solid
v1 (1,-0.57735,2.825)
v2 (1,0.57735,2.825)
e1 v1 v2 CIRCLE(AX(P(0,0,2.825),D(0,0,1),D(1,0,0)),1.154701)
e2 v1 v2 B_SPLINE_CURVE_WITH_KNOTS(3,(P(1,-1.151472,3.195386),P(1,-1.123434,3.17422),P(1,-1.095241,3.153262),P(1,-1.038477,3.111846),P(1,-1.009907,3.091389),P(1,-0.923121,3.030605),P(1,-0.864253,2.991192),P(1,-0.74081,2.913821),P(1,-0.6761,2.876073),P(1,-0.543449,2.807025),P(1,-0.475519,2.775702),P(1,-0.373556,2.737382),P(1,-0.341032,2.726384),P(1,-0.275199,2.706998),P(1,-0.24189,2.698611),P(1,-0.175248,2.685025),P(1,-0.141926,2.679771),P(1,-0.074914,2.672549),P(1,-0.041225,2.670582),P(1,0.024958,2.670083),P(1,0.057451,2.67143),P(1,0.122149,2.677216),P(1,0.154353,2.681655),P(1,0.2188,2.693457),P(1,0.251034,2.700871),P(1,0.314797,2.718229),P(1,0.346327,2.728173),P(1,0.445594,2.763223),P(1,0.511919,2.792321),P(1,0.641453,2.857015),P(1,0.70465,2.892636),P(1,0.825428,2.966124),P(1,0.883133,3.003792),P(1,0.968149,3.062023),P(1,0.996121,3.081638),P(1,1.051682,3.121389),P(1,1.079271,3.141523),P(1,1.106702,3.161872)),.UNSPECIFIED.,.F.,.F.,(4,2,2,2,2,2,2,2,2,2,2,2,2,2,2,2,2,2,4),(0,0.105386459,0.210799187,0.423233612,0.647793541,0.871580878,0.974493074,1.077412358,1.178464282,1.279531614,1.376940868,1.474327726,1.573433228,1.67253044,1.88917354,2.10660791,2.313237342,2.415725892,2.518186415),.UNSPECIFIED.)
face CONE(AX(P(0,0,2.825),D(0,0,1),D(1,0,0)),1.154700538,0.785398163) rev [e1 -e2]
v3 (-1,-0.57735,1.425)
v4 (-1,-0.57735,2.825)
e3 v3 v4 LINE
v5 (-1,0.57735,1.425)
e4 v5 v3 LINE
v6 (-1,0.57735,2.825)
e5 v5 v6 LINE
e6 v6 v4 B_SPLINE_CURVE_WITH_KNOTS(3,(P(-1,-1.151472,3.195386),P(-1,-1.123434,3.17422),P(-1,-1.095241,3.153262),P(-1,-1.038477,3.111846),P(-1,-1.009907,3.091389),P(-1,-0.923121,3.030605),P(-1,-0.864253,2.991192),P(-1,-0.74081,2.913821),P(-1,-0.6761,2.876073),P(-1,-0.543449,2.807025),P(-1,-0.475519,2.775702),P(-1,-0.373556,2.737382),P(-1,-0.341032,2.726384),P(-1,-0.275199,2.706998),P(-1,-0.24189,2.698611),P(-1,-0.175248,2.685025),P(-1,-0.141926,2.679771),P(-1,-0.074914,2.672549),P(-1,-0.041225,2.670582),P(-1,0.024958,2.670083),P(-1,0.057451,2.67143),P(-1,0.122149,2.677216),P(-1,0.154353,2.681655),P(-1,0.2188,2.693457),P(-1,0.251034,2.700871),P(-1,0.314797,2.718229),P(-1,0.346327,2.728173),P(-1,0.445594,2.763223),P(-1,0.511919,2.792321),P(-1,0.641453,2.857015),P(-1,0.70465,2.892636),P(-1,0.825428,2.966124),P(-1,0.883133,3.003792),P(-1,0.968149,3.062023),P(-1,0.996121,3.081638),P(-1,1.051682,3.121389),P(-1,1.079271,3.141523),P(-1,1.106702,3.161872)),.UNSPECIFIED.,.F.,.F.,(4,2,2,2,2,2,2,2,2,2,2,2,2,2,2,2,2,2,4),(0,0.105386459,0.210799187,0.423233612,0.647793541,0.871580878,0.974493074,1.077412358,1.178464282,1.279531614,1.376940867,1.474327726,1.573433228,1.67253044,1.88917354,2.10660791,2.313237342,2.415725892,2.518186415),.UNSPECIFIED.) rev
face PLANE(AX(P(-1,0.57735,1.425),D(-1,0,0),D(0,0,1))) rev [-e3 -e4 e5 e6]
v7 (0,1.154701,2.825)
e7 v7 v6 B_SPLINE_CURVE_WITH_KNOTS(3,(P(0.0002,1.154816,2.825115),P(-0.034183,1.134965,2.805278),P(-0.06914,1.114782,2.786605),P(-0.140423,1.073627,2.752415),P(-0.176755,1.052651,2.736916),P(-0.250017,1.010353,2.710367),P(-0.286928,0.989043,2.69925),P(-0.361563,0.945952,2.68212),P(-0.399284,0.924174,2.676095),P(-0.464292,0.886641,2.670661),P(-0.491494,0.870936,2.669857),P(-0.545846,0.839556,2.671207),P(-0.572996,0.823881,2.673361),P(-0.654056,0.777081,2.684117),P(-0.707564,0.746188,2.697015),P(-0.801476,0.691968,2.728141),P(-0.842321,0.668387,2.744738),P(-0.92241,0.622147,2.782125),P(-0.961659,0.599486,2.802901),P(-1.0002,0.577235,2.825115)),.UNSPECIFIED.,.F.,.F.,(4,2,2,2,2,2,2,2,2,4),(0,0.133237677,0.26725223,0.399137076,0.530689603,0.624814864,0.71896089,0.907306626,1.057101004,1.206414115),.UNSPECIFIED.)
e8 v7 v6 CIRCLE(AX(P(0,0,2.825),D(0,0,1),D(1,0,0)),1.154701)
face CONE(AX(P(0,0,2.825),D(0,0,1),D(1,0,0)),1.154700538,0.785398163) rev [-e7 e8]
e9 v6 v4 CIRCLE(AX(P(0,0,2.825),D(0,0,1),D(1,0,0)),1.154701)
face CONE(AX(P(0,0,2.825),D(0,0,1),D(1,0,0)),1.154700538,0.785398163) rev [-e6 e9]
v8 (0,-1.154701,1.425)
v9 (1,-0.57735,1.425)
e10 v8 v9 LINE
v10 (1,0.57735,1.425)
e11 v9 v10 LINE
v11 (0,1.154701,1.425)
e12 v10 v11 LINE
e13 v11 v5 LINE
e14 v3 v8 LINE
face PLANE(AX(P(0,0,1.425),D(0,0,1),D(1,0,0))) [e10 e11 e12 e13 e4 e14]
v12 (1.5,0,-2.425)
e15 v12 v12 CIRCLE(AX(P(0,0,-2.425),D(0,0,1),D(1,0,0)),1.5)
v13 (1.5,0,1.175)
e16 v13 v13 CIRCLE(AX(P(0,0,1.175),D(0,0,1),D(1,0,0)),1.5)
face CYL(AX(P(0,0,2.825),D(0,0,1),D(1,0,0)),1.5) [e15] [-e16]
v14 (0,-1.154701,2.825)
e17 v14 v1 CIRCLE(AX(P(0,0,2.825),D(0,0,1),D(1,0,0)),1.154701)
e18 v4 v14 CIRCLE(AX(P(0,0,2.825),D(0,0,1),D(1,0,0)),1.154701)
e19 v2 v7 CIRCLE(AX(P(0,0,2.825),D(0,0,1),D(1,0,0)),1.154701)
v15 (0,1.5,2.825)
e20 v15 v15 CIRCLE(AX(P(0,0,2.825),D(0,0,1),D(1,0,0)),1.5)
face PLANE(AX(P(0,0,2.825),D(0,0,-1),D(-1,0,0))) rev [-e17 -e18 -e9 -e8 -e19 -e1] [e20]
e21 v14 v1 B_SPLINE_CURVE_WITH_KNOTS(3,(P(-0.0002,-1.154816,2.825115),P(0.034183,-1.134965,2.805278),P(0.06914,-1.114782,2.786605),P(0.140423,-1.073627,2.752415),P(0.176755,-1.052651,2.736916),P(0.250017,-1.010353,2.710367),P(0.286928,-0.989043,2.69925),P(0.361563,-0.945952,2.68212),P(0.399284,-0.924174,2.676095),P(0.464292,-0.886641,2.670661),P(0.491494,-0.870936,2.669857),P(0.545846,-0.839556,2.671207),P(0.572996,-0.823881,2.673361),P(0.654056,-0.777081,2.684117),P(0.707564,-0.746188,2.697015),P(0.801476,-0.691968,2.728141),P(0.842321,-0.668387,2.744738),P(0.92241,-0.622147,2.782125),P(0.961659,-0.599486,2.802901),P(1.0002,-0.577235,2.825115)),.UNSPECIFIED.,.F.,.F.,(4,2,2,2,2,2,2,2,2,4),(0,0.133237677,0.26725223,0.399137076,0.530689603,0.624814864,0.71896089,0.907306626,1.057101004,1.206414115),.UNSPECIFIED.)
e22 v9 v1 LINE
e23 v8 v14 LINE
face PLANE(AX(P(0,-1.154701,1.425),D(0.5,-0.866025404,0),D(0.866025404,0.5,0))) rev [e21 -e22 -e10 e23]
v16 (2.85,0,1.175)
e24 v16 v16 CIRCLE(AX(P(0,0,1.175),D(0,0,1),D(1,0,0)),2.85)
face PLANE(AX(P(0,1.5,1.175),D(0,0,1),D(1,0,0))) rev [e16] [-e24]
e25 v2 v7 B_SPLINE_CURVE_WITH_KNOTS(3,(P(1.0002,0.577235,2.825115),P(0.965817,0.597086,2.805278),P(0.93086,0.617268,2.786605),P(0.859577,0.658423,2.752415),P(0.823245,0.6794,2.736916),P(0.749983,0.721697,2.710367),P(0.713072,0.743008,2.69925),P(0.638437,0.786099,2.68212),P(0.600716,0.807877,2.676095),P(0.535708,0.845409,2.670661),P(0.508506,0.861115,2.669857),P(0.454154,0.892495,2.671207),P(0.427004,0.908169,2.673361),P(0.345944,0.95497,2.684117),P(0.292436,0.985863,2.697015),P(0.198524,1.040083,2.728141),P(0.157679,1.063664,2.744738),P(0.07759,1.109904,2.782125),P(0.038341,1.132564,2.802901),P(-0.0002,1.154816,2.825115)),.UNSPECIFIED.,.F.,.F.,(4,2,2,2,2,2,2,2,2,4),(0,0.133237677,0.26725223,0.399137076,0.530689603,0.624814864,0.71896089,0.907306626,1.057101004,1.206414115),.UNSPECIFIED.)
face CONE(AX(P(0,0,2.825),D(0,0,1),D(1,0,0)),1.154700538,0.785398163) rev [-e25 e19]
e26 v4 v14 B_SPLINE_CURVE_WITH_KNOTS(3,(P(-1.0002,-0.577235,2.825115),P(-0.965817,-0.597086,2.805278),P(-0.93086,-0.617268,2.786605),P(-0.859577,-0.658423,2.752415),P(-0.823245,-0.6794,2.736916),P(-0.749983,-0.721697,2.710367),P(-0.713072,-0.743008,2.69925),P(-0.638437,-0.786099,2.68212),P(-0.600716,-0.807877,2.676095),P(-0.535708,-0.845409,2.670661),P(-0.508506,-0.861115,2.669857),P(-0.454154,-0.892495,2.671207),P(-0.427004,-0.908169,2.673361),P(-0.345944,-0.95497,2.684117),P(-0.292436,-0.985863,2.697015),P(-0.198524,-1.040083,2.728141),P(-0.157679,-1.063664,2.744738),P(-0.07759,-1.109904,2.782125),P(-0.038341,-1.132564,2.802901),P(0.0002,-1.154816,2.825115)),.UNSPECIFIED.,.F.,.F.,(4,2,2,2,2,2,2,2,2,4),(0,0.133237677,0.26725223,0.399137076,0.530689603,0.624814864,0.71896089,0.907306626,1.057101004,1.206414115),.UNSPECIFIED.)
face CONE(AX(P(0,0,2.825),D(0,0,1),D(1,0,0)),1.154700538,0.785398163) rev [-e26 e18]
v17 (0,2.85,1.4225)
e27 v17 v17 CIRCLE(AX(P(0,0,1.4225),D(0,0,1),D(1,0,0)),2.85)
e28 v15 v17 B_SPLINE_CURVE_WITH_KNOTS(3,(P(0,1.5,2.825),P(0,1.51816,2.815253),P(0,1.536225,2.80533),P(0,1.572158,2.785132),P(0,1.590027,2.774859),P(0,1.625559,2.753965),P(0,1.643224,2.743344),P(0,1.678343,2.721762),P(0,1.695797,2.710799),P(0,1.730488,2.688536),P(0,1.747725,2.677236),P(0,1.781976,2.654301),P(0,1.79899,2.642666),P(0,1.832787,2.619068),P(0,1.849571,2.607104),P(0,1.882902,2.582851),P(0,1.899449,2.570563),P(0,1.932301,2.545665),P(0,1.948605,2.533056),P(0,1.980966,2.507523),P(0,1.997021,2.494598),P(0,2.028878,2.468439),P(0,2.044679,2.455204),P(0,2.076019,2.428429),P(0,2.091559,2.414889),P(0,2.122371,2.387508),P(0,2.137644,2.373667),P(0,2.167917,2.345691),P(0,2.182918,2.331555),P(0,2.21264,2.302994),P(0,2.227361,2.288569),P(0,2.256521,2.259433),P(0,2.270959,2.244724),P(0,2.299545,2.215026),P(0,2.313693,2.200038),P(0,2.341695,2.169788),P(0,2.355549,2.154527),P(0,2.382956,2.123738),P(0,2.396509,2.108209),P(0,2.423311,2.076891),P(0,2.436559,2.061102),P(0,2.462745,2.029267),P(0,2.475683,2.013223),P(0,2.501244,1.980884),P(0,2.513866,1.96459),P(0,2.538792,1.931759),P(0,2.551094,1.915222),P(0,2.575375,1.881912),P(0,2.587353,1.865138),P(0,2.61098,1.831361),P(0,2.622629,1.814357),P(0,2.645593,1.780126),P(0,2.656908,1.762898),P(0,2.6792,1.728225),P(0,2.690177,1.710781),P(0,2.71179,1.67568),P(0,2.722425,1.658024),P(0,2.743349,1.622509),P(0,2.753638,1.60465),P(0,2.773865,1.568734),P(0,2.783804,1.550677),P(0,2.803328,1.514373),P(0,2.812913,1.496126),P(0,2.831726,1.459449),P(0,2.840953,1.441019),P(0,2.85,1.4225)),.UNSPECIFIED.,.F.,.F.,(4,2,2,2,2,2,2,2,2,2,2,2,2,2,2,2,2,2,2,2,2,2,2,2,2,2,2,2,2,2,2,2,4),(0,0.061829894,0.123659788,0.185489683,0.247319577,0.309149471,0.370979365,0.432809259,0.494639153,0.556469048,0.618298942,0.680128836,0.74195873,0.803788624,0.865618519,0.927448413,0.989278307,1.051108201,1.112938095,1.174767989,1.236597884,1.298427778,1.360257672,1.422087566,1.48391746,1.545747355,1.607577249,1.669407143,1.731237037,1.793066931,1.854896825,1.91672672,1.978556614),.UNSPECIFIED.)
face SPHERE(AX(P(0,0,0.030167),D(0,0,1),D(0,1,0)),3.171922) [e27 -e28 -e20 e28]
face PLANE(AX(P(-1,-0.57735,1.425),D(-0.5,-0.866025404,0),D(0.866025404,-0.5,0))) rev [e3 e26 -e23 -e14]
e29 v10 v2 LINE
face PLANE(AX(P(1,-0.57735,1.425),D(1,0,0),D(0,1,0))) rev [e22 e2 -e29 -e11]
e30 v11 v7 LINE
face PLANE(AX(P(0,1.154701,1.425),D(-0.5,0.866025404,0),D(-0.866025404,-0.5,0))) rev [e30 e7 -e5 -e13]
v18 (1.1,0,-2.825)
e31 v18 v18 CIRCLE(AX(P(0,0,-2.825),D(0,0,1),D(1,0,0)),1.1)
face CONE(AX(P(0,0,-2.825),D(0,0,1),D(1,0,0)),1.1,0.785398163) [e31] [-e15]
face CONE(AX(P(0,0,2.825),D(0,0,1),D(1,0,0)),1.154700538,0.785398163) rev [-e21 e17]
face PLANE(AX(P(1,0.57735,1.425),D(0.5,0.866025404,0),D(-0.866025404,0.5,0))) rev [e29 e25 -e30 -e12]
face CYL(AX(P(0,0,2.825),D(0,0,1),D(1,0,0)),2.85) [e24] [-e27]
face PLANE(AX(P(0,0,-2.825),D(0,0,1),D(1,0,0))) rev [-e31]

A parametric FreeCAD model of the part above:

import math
import FreeCAD as App
import Part
import Sketcher

V = App.Vector
Q = App.Units.Quantity


def add_polygon(sketch, points):
    """Adds a closed chain of lines whose ends are joined by coincident constraints."""
    first, n = sketch.GeometryCount, len(points)
    for a, b in zip(points, points[1:] + points[:1]):
        sketch.addGeometry(Part.LineSegment(App.Vector(*a, 0), App.Vector(*b, 0)), False)
    for i in range(n):
        sketch.addConstraint(Sketcher.Constraint("Coincident", first + i, 2, first + (i + 1) % n, 1))

doc = App.newDocument("Part")
body = doc.addObject("PartDesign::Body", "Body")

sketch1 = body.newObject("Sketcher::SketchObject", "Sketch")
sketch1.AttachmentSupport = (doc.getObject("YZ_Plane"), [""])
sketch1.MapMode = "FlatFace"
sketch1.addGeometry(Part.LineSegment(V(0, 2.825, 0), V(0, -2.825, 0)), False)
sketch1.addGeometry(Part.LineSegment(V(0, -2.825, 0), V(1.1, -2.825, 0)), False)
sketch1.addGeometry(Part.LineSegment(V(1.1, -2.825, 0), V(1.5, -2.425, 0)), False)
sketch1.addGeometry(Part.LineSegment(V(1.5, -2.425, 0), V(1.5, 1.175, 0)), False)
sketch1.addGeometry(Part.LineSegment(V(1.5, 1.175, 0), V(2.85, 1.175, 0)), False)
sketch1.addGeometry(Part.LineSegment(V(2.85, 1.175, 0), V(2.85, 1.4225, 0)), False)
sketch1.addGeometry(Part.ArcOfCircle(Part.Circle(V(0, 0.030167, 0), V(0, 0, 1), 3.171922), math.radians(26.03726), math.radians(61.777335)), False)
sketch1.addGeometry(Part.LineSegment(V(1.5, 2.825, 0), V(0, 2.825, 0)), False)
sketch1.addConstraint(Sketcher.Constraint("Coincident", 0, 2, 1, 1))
sketch1.addConstraint(Sketcher.Constraint("Coincident", 1, 2, 2, 1))
sketch1.addConstraint(Sketcher.Constraint("Coincident", 2, 2, 3, 1))
sketch1.addConstraint(Sketcher.Constraint("Coincident", 3, 2, 4, 1))
sketch1.addConstraint(Sketcher.Constraint("Coincident", 4, 2, 5, 1))
sketch1.addConstraint(Sketcher.Constraint("Coincident", 5, 2, 6, 1))
sketch1.addConstraint(Sketcher.Constraint("Coincident", 6, 2, 7, 1))
sketch1.addConstraint(Sketcher.Constraint("Coincident", 7, 2, 0, 1))
sketch1.addConstraint(Sketcher.Constraint("Vertical", 0))
sketch1.addConstraint(Sketcher.Constraint("Horizontal", 1))
sketch1.addConstraint(Sketcher.Constraint("Vertical", 3))
sketch1.addConstraint(Sketcher.Constraint("Horizontal", 4))
sketch1.addConstraint(Sketcher.Constraint("Vertical", 5))
sketch1.addConstraint(Sketcher.Constraint("Horizontal", 7))
sketch1.addConstraint(Sketcher.Constraint("Symmetric", 0, 2, 7, 2, -1, 1))
sketch1.addConstraint(Sketcher.Constraint("PointOnObject", 6, 3, -2))
sketch1.addConstraint(Sketcher.Constraint("Vertical", 3, 2, 6, 2))
sketch1.addConstraint(Sketcher.Constraint("Angle", 2, Q("45 deg")))
sketch1.addConstraint(Sketcher.Constraint("DistanceX", 1, 1, 1, 2, 1.1))
sketch1.addConstraint(Sketcher.Constraint("DistanceX", 7, 2, 7, 1, 1.5))
sketch1.addConstraint(Sketcher.Constraint("DistanceY", 3, 1, 3, 2, 3.6))
sketch1.addConstraint(Sketcher.Constraint("DistanceX", 4, 1, 4, 2, 1.35))
sketch1.addConstraint(Sketcher.Constraint("DistanceY", 0, 2, 0, 1, 5.65))
sketch1.addConstraint(Sketcher.Constraint("DistanceY", 5, 1, 5, 2, 0.2475))
revolution = body.newObject("PartDesign::Revolution", "Revolution")
revolution.Profile = sketch1
revolution.ReferenceAxis = (sketch1, ["V_Axis"])
revolution.Angle = 360

sketch2 = body.newObject("Sketcher::SketchObject", "Sketch001")
sketch2.AttachmentSupport = (doc.getObject("XY_Plane"), [""])
sketch2.MapMode = "FlatFace"
sketch2.AttachmentOffset = App.Placement(V(0, 0, 2.825), App.Rotation())
add_polygon(sketch2, [(0, 1.154701), (-1, 0.57735), (-1, -0.57735), (0, -1.154701), (1, -0.57735), (1, 0.57735)])
sketch2.addConstraint(Sketcher.Constraint("Vertical", 1))
sketch2.addConstraint(Sketcher.Constraint("Vertical", 4))
sketch2.addConstraint(Sketcher.Constraint("Symmetric", 0, 2, 3, 2, -1, 1))
sketch2.addConstraint(Sketcher.Constraint("Symmetric", 2, 2, 5, 2, -1, 1))
sketch2.addConstraint(Sketcher.Constraint("PointOnObject", 2, 2, -2))
sketch2.addConstraint(Sketcher.Constraint("Parallel", 2, 5))
sketch2.addConstraint(Sketcher.Constraint("Horizontal", 1, 2, 3, 2))
sketch2.addConstraint(Sketcher.Constraint("Angle", 0, Q("-150 deg")))
sketch2.addConstraint(Sketcher.Constraint("DistanceX", 0, 2, -1, 1, 1.0))
sketch2.addConstraint(Sketcher.Constraint("DistanceY", 1, 2, 1, 1, 1.154701))
pocket1 = body.newObject("PartDesign::Pocket", "Pocket")
pocket1.Profile = sketch2
pocket1.Length = 1.4

sketch3 = body.newObject("Sketcher::SketchObject", "Sketch002")
sketch3.AttachmentSupport = (doc.getObject("YZ_Plane"), [""])
sketch3.MapMode = "FlatFace"
add_polygon(sketch3, [(0, 2.825), (-1.154701, 2.825), (0, 1.670299)])
sketch3.addConstraint(Sketcher.Constraint("Horizontal", 0))
sketch3.addConstraint(Sketcher.Constraint("Vertical", 2))
sketch3.addConstraint(Sketcher.Constraint("PointOnObject", 1, 2, -2))
sketch3.addConstraint(Sketcher.Constraint("Equal", 0, 2))
sketch3.addConstraint(Sketcher.Constraint("DistanceX", 0, 2, 0, 1, 1.154701))
sketch3.addConstraint(Sketcher.Constraint("DistanceY", -1, 1, 0, 2, 2.825))
groove = body.newObject("PartDesign::Groove", "Groove")
groove.Profile = sketch3
groove.ReferenceAxis = (sketch3, ["V_Axis"])
groove.Angle = 360

doc.recompute()
